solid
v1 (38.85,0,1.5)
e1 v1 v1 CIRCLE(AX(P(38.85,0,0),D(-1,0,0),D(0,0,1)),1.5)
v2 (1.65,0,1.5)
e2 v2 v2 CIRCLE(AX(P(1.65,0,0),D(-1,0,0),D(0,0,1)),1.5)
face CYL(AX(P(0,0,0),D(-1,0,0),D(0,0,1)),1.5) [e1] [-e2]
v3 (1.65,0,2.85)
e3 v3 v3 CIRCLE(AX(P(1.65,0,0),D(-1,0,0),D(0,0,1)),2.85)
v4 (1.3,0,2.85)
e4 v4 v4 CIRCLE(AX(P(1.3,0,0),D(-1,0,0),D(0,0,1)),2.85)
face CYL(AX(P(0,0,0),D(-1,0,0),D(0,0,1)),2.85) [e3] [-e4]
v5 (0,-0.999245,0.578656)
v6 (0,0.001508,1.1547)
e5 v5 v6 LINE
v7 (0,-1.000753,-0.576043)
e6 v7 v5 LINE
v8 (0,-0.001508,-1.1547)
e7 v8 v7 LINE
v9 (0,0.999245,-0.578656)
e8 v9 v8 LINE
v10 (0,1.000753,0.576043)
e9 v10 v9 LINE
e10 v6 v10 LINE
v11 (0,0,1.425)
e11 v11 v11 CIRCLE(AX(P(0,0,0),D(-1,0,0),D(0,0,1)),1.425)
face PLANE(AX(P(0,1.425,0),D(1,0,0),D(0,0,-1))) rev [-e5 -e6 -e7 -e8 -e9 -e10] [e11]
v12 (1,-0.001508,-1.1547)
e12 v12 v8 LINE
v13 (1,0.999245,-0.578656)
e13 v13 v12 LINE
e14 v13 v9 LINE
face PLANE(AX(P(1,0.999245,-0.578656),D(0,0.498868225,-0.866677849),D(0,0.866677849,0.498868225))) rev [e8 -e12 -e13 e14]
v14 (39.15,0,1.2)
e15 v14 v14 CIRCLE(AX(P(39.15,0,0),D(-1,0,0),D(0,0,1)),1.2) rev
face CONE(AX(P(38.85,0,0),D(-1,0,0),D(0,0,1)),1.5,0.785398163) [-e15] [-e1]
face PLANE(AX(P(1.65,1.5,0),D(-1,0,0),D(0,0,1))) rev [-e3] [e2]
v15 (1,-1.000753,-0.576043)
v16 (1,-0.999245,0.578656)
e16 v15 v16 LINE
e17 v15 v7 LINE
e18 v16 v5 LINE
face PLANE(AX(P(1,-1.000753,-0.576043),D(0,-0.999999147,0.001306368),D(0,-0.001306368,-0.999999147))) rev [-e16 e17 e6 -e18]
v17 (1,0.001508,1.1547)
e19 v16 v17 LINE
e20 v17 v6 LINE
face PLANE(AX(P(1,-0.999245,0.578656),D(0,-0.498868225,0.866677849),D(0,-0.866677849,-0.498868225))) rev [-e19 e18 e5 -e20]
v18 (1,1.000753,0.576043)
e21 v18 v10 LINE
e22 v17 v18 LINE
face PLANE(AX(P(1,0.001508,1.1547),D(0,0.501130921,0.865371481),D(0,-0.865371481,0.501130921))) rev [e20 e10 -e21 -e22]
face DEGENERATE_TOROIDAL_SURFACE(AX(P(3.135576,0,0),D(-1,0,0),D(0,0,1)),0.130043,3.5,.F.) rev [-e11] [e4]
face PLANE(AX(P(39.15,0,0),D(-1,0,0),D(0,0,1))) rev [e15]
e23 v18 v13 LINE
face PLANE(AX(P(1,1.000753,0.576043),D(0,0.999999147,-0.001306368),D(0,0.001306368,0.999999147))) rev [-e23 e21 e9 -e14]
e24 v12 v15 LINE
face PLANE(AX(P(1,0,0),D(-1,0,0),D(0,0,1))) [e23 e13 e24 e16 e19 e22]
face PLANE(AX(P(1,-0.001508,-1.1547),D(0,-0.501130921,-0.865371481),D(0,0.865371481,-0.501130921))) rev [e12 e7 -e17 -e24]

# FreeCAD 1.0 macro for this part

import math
import FreeCAD as App
import Part
import Sketcher

V = App.Vector


def edges_at(feature, points):
    """Names of the edges that pass closest to the given points."""
    edges = feature.Shape.Edges
    near = lambda p: min(range(len(edges)), key=lambda i: edges[i].distToShape(Part.Vertex(*p))[0])
    return sorted({f"Edge{near(p) + 1}" for p in points})


def add_polygon(sketch, points):
    """Adds a closed chain of lines whose ends are joined by coincident constraints."""
    first, n = sketch.GeometryCount, len(points)
    for a, b in zip(points, points[1:] + points[:1]):
        sketch.addGeometry(Part.LineSegment(App.Vector(*a, 0), App.Vector(*b, 0)), False)
    for i in range(n):
        sketch.addConstraint(Sketcher.Constraint("Coincident", first + i, 2, first + (i + 1) % n, 1))

doc = App.newDocument("Part")
body = doc.addObject("PartDesign::Body", "Body")

# Sketch on XY plane
sketch1 = body.newObject("Sketcher::SketchObject", "Sketch")
sketch1.AttachmentSupport = (doc.getObject("XY_Plane"), [""])
sketch1.MapMode = "FlatFace"
sketch1.addGeometry([
    Part.LineSegment(V(0, 0, 0), V(39.15, 0, 0)),  # 0
    Part.LineSegment(V(39.15, 0, 0), V(39.15, 1.5, 0)),  # 1
    Part.LineSegment(V(39.15, 1.5, 0), V(1.65, 1.5, 0)),  # 2
    Part.LineSegment(V(1.65, 1.5, 0), V(1.65, 2.85, 0)),  # 3
    Part.LineSegment(V(1.65, 2.85, 0), V(1.3, 2.85, 0)),  # 4
    Part.ArcOfCircle(Part.Circle(V(3.14, -0.13, 0), V(0, 0, 1), 3.5), math.radians(122), math.radians(154)),  # 5
    Part.LineSegment(V(0, 1.43, 0), V(0, 0, 0)),  # 6
], False)
sketch1.addConstraint([
    Sketcher.Constraint("Coincident", 0, 2, 1, 1),
    Sketcher.Constraint("Coincident", 1, 2, 2, 1),
    Sketcher.Constraint("Coincident", 2, 2, 3, 1),
    Sketcher.Constraint("Coincident", 3, 2, 4, 1),
    Sketcher.Constraint("Coincident", 4, 2, 5, 1),
    Sketcher.Constraint("Coincident", 5, 2, 6, 1),
    Sketcher.Constraint("Coincident", 6, 2, 0, 1),
    Sketcher.Constraint("Horizontal", 0),
    Sketcher.Constraint("Vertical", 1),
    Sketcher.Constraint("Horizontal", 2),
    Sketcher.Constraint("Vertical", 3),
    Sketcher.Constraint("Horizontal", 4),
    Sketcher.Constraint("Vertical", 6),
    Sketcher.Constraint("Coincident", 6, 2, -1, 1),
    Sketcher.Constraint("Radius", 5, 3.5),
    Sketcher.Constraint("DistanceX", 2, 2, 2, 1, 37.5),
    Sketcher.Constraint("DistanceY", 1, 1, 1, 2, 1.5),
    Sketcher.Constraint("DistanceX", 0, 1, 0, 2, 39.15),
    Sketcher.Constraint("DistanceX", 4, 2, 4, 1, 0.35),
    Sketcher.Constraint("DistanceY", 3, 1, 3, 2, 1.35),
    Sketcher.Constraint("DistanceY", 6, 2, 6, 1, 1.425),
])
revolution = body.newObject("PartDesign::Revolution", "Revolution")
revolution.Profile = sketch1
revolution.ReferenceAxis = (sketch1, ["H_Axis"])
revolution.Angle = 360
doc.recompute()

chamfer = body.newObject("PartDesign::Chamfer", "Chamfer")
chamfer.Base = (revolution, edges_at(revolution, [(39.15, -1.5, 0)]))
chamfer.Size = 0.3

# Sketch on YZ plane
sketch2 = body.newObject("Sketcher::SketchObject", "Sketch001")
sketch2.AttachmentSupport = (doc.getObject("YZ_Plane"), [""])
sketch2.MapMode = "FlatFace"
add_polygon(sketch2, [(1, 0.6), (1, -0.6), (0, -1.2), (-1, -0.6), (-1, 0.6), (0, 1.2)])  # lines 0-5
sketch2.addConstraint([
    Sketcher.Constraint("Symmetric", 0, 2, 3, 2, -1, 1),
    Sketcher.Constraint("Symmetric", 1, 2, 4, 2, -1, 1),
    Sketcher.Constraint("Symmetric", 2, 2, 5, 2, -1, 1),
    Sketcher.Constraint("Equal", 0, 1),
    Sketcher.Constraint("Equal", 1, 2),
    Sketcher.Constraint("DistanceX", 2, 2, 0, 2, 1.999998),
    Sketcher.Constraint("Distance", 0, 1.154701),
    Sketcher.Constraint("DistanceX", 1, 2, -1, 1, 0.001508),
    Sketcher.Constraint("DistanceX", 2, 2, 3, 2, 0.001508),
])
pocket1 = body.newObject("PartDesign::Pocket", "Pocket")
pocket1.Profile = sketch2
pocket1.Length = 1
pocket1.Reversed = True

doc.recompute()
